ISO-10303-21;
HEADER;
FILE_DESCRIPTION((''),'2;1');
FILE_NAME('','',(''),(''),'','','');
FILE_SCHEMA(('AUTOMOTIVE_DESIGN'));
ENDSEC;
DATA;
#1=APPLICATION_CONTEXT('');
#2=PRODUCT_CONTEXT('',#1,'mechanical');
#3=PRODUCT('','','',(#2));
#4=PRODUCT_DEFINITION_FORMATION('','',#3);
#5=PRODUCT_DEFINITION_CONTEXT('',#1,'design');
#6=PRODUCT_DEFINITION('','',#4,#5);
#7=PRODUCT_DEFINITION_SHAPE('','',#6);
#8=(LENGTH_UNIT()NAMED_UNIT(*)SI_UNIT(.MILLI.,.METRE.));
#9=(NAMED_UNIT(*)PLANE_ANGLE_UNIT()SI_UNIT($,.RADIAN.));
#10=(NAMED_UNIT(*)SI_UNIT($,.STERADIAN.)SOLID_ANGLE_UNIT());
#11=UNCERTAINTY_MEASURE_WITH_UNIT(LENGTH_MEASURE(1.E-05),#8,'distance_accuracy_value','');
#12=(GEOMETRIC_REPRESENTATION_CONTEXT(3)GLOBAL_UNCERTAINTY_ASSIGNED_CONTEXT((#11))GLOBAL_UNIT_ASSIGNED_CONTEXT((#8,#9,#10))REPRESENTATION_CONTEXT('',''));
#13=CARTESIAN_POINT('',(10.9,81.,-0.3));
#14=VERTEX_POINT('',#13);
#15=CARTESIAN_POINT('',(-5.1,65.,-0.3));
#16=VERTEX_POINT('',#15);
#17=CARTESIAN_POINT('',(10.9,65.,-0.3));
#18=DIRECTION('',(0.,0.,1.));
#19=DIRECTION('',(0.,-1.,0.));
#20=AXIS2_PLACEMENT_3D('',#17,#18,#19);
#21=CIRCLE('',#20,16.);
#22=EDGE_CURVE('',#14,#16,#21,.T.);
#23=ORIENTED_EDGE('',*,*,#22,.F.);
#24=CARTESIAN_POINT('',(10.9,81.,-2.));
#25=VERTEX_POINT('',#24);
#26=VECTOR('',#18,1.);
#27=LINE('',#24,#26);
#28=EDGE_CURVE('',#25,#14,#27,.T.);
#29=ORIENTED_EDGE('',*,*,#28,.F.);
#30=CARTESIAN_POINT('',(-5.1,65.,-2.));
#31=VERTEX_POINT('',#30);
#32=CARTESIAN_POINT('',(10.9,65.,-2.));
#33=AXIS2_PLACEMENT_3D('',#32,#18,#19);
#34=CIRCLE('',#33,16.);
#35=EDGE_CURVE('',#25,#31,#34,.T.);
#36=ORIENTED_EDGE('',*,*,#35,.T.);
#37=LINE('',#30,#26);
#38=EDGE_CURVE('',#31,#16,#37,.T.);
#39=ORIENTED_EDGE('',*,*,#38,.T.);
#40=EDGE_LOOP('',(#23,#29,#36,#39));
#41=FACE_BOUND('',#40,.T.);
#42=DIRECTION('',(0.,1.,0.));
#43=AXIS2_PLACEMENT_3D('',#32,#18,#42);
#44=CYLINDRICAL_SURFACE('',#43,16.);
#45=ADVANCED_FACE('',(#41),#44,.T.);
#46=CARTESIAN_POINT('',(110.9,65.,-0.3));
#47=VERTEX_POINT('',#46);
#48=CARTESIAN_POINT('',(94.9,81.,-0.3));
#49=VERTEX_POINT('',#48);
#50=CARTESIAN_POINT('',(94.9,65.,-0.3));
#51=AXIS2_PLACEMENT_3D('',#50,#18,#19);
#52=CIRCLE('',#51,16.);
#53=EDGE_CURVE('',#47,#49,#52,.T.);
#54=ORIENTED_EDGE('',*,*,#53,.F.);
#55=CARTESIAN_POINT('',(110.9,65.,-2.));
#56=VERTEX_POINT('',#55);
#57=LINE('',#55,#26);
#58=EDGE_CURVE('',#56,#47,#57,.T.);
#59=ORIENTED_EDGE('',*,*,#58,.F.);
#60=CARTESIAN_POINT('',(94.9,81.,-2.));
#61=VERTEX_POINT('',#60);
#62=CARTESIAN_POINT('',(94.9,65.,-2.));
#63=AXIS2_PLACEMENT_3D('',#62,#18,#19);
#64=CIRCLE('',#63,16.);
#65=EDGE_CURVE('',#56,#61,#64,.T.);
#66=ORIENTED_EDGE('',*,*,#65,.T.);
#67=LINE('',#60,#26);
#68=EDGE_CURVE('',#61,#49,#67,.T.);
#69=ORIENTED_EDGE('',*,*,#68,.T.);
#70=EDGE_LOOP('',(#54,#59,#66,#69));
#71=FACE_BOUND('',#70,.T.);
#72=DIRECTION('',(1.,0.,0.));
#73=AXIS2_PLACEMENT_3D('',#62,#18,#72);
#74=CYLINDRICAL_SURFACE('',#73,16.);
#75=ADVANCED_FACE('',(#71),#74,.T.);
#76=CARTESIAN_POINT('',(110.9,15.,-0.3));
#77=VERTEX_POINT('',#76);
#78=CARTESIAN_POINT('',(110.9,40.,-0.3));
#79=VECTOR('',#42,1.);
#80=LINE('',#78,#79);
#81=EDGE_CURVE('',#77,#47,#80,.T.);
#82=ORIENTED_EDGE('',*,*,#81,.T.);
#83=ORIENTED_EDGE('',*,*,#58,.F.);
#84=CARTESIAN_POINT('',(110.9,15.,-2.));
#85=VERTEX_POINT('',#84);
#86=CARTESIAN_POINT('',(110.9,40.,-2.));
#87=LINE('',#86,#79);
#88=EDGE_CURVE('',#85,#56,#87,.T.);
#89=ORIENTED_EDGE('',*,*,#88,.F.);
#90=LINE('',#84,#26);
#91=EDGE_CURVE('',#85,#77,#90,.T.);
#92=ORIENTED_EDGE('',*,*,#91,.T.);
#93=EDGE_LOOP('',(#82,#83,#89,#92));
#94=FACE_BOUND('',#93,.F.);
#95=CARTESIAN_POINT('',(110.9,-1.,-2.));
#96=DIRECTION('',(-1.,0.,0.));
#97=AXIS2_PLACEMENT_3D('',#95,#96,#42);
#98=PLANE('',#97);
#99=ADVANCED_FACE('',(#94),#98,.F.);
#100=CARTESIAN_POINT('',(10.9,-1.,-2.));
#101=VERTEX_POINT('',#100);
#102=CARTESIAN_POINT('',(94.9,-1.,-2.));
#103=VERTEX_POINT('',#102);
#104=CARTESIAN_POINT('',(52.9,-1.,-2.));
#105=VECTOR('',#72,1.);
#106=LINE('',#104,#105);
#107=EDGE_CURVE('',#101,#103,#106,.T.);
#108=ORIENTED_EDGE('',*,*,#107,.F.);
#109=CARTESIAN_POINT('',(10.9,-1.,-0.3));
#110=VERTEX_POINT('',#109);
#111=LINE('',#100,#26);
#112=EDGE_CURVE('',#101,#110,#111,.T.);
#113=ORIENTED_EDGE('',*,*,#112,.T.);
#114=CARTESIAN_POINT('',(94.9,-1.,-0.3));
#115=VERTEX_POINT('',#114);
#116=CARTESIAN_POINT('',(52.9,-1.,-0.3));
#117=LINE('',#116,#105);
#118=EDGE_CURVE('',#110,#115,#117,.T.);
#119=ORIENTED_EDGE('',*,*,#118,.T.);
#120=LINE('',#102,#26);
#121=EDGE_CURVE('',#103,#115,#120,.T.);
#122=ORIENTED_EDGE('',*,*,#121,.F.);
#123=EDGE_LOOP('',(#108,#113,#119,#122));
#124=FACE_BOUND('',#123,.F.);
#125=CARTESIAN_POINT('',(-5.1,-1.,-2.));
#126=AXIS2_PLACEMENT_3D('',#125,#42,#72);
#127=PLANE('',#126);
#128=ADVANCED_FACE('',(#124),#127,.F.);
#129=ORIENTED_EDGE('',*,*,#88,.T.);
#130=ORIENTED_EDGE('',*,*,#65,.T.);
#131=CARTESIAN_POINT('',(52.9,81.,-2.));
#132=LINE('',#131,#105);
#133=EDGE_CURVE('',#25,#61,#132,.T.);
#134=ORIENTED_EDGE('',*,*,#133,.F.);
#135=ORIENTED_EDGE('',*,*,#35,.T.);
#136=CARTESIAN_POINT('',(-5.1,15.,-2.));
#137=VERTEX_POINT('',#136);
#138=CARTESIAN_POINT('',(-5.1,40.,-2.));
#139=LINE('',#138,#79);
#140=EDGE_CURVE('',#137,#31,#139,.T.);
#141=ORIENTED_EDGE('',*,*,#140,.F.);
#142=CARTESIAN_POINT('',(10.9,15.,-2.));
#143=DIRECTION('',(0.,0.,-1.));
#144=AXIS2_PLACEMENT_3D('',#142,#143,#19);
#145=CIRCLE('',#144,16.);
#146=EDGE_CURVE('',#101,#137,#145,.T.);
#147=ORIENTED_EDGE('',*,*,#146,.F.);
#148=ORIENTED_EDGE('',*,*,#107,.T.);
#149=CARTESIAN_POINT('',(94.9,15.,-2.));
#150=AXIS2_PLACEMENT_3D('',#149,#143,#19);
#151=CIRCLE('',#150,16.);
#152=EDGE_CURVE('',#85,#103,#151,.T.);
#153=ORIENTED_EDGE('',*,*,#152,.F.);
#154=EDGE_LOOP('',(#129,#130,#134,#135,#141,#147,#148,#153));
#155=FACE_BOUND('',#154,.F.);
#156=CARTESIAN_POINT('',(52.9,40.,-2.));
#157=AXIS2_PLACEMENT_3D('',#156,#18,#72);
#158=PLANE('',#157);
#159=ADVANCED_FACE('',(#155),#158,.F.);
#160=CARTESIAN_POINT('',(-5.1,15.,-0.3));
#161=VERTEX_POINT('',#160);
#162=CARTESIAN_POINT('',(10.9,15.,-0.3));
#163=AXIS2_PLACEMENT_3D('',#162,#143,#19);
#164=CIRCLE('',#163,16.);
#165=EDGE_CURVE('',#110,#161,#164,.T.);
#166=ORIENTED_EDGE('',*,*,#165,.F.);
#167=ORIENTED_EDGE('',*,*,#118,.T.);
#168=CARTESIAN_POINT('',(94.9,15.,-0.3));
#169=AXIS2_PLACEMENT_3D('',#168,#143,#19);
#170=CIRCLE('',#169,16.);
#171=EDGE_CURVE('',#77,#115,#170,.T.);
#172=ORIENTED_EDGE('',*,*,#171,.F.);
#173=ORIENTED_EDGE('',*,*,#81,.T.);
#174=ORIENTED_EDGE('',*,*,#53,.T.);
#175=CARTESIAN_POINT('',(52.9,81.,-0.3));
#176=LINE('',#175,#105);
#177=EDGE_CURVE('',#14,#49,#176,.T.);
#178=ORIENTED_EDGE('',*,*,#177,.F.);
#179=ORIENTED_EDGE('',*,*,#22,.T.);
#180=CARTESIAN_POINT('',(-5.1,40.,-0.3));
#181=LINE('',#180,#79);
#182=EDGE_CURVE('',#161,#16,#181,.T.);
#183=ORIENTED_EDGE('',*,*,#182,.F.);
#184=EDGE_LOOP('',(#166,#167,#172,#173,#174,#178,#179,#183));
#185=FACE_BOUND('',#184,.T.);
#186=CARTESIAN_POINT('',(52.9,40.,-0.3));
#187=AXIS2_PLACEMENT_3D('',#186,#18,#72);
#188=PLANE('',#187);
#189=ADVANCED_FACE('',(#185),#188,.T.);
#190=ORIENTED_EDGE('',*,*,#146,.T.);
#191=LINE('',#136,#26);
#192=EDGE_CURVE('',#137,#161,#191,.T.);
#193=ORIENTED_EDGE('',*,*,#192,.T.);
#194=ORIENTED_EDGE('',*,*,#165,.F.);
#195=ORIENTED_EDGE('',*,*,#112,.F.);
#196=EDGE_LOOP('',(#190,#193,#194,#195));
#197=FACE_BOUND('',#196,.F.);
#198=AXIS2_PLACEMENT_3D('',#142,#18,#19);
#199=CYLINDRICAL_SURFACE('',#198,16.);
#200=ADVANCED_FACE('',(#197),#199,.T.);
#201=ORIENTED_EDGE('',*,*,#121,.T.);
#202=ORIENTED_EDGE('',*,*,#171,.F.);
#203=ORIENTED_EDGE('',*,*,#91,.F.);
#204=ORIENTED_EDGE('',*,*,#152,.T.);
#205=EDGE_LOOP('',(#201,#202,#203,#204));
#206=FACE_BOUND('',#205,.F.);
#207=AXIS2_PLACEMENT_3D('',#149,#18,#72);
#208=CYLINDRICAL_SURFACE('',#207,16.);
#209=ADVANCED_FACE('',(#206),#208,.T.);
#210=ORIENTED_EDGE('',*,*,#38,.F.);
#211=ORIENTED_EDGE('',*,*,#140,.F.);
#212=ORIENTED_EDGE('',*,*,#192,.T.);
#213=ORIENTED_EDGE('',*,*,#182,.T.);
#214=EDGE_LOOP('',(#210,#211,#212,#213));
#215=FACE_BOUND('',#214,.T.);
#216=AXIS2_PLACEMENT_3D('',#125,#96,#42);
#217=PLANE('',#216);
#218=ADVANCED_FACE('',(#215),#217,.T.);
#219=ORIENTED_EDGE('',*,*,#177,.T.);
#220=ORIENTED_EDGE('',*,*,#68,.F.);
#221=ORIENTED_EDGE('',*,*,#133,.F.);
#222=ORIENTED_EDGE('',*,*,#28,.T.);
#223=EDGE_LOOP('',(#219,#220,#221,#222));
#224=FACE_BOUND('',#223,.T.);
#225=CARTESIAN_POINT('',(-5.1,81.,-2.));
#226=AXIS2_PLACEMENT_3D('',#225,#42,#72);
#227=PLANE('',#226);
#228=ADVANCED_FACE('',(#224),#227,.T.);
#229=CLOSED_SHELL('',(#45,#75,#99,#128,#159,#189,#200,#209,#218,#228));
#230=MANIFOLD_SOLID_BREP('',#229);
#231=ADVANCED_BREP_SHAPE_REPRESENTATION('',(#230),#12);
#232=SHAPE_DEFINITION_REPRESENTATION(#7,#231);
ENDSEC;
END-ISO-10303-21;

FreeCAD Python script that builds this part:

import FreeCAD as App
import Part
import Sketcher
from FreeCAD import Vector
Q = App.Units.Quantity


def edges_at(feature, points):
    """Names of the edges that pass closest to the given points."""
    edges = feature.Shape.Edges
    near = lambda p: min(range(len(edges)), key=lambda i: edges[i].distToShape(Part.Vertex(*p))[0])
    return sorted({f"Edge{near(p) + 1}" for p in points})

doc = App.newDocument("Part")
body = doc.addObject("PartDesign::Body", "Body")

sketch1 = body.newObject("Sketcher::SketchObject", "Sketch")
sketch1.AttachmentSupport = (doc.getObject("XY_Plane"), [""])
sketch1.MapMode = "FlatFace"
sketch1.AttachmentOffset = App.Placement(Vector(0, 0, -12), App.Rotation())
sketch1.addGeometry([
    Part.LineSegment(Vector(-5.1, 81, 0), Vector(-5.1, -1, 0)),
    Part.LineSegment(Vector(-5.1, -1, 0), Vector(110.9, -1, 0)),
    Part.LineSegment(Vector(110.9, -1, 0), Vector(110.9, 81, 0)),
    Part.LineSegment(Vector(110.9, 81, 0), Vector(-5.1, 81, 0)),
], False)
sketch1.addConstraint([
    Sketcher.Constraint("Coincident", 0, 2, 1, 1),
    Sketcher.Constraint("Coincident", 1, 2, 2, 1),
    Sketcher.Constraint("Coincident", 2, 2, 3, 1),
    Sketcher.Constraint("Coincident", 3, 2, 0, 1),
    Sketcher.Constraint("Vertical", 0),
    Sketcher.Constraint("Horizontal", 1),
    Sketcher.Constraint("Vertical", 2),
    Sketcher.Constraint("Horizontal", 3),
    Sketcher.Constraint("DistanceX", 1, 1, 1, 2, Q("116 mm")),
    Sketcher.Constraint("DistanceY", 0, 2, 0, 1, Q("82 mm")),
    Sketcher.Constraint("DistanceY", 0, 2, -1, 1, Q("1 mm")),
    Sketcher.Constraint("DistanceX", 0, 2, -1, 1, Q("5.1 mm")),
])
pad1 = body.newObject("PartDesign::Pad", "Pad")
pad1.Profile = sketch1
pad1.Length = 1.7
doc.recompute()

fillet = body.newObject("PartDesign::Fillet", "Fillet")
fillet.Base = (pad1, edges_at(pad1, [(110.9, 81, -11.15)]))
fillet.Radius = 16
doc.recompute()

fillet2 = body.newObject("PartDesign::Fillet", "Fillet001")
fillet2.Base = (fillet, edges_at(fillet, [(110.9, -1, -11.15), (-5.1, -1, -11.15), (-5.1, 81, -11.15)]))
fillet2.Radius = 16
body2 = doc.addObject("PartDesign::Body", "Body001")
doc.recompute()

body.Placement = App.Placement(Vector(0, 0, 10), App.Rotation(Vector(0, 0, 1), 0))
boolean = body2.newObject("PartDesign::Boolean", "Boolean")
boolean.Type = "Fuse"
boolean.addObjects([body])

doc.recompute()
